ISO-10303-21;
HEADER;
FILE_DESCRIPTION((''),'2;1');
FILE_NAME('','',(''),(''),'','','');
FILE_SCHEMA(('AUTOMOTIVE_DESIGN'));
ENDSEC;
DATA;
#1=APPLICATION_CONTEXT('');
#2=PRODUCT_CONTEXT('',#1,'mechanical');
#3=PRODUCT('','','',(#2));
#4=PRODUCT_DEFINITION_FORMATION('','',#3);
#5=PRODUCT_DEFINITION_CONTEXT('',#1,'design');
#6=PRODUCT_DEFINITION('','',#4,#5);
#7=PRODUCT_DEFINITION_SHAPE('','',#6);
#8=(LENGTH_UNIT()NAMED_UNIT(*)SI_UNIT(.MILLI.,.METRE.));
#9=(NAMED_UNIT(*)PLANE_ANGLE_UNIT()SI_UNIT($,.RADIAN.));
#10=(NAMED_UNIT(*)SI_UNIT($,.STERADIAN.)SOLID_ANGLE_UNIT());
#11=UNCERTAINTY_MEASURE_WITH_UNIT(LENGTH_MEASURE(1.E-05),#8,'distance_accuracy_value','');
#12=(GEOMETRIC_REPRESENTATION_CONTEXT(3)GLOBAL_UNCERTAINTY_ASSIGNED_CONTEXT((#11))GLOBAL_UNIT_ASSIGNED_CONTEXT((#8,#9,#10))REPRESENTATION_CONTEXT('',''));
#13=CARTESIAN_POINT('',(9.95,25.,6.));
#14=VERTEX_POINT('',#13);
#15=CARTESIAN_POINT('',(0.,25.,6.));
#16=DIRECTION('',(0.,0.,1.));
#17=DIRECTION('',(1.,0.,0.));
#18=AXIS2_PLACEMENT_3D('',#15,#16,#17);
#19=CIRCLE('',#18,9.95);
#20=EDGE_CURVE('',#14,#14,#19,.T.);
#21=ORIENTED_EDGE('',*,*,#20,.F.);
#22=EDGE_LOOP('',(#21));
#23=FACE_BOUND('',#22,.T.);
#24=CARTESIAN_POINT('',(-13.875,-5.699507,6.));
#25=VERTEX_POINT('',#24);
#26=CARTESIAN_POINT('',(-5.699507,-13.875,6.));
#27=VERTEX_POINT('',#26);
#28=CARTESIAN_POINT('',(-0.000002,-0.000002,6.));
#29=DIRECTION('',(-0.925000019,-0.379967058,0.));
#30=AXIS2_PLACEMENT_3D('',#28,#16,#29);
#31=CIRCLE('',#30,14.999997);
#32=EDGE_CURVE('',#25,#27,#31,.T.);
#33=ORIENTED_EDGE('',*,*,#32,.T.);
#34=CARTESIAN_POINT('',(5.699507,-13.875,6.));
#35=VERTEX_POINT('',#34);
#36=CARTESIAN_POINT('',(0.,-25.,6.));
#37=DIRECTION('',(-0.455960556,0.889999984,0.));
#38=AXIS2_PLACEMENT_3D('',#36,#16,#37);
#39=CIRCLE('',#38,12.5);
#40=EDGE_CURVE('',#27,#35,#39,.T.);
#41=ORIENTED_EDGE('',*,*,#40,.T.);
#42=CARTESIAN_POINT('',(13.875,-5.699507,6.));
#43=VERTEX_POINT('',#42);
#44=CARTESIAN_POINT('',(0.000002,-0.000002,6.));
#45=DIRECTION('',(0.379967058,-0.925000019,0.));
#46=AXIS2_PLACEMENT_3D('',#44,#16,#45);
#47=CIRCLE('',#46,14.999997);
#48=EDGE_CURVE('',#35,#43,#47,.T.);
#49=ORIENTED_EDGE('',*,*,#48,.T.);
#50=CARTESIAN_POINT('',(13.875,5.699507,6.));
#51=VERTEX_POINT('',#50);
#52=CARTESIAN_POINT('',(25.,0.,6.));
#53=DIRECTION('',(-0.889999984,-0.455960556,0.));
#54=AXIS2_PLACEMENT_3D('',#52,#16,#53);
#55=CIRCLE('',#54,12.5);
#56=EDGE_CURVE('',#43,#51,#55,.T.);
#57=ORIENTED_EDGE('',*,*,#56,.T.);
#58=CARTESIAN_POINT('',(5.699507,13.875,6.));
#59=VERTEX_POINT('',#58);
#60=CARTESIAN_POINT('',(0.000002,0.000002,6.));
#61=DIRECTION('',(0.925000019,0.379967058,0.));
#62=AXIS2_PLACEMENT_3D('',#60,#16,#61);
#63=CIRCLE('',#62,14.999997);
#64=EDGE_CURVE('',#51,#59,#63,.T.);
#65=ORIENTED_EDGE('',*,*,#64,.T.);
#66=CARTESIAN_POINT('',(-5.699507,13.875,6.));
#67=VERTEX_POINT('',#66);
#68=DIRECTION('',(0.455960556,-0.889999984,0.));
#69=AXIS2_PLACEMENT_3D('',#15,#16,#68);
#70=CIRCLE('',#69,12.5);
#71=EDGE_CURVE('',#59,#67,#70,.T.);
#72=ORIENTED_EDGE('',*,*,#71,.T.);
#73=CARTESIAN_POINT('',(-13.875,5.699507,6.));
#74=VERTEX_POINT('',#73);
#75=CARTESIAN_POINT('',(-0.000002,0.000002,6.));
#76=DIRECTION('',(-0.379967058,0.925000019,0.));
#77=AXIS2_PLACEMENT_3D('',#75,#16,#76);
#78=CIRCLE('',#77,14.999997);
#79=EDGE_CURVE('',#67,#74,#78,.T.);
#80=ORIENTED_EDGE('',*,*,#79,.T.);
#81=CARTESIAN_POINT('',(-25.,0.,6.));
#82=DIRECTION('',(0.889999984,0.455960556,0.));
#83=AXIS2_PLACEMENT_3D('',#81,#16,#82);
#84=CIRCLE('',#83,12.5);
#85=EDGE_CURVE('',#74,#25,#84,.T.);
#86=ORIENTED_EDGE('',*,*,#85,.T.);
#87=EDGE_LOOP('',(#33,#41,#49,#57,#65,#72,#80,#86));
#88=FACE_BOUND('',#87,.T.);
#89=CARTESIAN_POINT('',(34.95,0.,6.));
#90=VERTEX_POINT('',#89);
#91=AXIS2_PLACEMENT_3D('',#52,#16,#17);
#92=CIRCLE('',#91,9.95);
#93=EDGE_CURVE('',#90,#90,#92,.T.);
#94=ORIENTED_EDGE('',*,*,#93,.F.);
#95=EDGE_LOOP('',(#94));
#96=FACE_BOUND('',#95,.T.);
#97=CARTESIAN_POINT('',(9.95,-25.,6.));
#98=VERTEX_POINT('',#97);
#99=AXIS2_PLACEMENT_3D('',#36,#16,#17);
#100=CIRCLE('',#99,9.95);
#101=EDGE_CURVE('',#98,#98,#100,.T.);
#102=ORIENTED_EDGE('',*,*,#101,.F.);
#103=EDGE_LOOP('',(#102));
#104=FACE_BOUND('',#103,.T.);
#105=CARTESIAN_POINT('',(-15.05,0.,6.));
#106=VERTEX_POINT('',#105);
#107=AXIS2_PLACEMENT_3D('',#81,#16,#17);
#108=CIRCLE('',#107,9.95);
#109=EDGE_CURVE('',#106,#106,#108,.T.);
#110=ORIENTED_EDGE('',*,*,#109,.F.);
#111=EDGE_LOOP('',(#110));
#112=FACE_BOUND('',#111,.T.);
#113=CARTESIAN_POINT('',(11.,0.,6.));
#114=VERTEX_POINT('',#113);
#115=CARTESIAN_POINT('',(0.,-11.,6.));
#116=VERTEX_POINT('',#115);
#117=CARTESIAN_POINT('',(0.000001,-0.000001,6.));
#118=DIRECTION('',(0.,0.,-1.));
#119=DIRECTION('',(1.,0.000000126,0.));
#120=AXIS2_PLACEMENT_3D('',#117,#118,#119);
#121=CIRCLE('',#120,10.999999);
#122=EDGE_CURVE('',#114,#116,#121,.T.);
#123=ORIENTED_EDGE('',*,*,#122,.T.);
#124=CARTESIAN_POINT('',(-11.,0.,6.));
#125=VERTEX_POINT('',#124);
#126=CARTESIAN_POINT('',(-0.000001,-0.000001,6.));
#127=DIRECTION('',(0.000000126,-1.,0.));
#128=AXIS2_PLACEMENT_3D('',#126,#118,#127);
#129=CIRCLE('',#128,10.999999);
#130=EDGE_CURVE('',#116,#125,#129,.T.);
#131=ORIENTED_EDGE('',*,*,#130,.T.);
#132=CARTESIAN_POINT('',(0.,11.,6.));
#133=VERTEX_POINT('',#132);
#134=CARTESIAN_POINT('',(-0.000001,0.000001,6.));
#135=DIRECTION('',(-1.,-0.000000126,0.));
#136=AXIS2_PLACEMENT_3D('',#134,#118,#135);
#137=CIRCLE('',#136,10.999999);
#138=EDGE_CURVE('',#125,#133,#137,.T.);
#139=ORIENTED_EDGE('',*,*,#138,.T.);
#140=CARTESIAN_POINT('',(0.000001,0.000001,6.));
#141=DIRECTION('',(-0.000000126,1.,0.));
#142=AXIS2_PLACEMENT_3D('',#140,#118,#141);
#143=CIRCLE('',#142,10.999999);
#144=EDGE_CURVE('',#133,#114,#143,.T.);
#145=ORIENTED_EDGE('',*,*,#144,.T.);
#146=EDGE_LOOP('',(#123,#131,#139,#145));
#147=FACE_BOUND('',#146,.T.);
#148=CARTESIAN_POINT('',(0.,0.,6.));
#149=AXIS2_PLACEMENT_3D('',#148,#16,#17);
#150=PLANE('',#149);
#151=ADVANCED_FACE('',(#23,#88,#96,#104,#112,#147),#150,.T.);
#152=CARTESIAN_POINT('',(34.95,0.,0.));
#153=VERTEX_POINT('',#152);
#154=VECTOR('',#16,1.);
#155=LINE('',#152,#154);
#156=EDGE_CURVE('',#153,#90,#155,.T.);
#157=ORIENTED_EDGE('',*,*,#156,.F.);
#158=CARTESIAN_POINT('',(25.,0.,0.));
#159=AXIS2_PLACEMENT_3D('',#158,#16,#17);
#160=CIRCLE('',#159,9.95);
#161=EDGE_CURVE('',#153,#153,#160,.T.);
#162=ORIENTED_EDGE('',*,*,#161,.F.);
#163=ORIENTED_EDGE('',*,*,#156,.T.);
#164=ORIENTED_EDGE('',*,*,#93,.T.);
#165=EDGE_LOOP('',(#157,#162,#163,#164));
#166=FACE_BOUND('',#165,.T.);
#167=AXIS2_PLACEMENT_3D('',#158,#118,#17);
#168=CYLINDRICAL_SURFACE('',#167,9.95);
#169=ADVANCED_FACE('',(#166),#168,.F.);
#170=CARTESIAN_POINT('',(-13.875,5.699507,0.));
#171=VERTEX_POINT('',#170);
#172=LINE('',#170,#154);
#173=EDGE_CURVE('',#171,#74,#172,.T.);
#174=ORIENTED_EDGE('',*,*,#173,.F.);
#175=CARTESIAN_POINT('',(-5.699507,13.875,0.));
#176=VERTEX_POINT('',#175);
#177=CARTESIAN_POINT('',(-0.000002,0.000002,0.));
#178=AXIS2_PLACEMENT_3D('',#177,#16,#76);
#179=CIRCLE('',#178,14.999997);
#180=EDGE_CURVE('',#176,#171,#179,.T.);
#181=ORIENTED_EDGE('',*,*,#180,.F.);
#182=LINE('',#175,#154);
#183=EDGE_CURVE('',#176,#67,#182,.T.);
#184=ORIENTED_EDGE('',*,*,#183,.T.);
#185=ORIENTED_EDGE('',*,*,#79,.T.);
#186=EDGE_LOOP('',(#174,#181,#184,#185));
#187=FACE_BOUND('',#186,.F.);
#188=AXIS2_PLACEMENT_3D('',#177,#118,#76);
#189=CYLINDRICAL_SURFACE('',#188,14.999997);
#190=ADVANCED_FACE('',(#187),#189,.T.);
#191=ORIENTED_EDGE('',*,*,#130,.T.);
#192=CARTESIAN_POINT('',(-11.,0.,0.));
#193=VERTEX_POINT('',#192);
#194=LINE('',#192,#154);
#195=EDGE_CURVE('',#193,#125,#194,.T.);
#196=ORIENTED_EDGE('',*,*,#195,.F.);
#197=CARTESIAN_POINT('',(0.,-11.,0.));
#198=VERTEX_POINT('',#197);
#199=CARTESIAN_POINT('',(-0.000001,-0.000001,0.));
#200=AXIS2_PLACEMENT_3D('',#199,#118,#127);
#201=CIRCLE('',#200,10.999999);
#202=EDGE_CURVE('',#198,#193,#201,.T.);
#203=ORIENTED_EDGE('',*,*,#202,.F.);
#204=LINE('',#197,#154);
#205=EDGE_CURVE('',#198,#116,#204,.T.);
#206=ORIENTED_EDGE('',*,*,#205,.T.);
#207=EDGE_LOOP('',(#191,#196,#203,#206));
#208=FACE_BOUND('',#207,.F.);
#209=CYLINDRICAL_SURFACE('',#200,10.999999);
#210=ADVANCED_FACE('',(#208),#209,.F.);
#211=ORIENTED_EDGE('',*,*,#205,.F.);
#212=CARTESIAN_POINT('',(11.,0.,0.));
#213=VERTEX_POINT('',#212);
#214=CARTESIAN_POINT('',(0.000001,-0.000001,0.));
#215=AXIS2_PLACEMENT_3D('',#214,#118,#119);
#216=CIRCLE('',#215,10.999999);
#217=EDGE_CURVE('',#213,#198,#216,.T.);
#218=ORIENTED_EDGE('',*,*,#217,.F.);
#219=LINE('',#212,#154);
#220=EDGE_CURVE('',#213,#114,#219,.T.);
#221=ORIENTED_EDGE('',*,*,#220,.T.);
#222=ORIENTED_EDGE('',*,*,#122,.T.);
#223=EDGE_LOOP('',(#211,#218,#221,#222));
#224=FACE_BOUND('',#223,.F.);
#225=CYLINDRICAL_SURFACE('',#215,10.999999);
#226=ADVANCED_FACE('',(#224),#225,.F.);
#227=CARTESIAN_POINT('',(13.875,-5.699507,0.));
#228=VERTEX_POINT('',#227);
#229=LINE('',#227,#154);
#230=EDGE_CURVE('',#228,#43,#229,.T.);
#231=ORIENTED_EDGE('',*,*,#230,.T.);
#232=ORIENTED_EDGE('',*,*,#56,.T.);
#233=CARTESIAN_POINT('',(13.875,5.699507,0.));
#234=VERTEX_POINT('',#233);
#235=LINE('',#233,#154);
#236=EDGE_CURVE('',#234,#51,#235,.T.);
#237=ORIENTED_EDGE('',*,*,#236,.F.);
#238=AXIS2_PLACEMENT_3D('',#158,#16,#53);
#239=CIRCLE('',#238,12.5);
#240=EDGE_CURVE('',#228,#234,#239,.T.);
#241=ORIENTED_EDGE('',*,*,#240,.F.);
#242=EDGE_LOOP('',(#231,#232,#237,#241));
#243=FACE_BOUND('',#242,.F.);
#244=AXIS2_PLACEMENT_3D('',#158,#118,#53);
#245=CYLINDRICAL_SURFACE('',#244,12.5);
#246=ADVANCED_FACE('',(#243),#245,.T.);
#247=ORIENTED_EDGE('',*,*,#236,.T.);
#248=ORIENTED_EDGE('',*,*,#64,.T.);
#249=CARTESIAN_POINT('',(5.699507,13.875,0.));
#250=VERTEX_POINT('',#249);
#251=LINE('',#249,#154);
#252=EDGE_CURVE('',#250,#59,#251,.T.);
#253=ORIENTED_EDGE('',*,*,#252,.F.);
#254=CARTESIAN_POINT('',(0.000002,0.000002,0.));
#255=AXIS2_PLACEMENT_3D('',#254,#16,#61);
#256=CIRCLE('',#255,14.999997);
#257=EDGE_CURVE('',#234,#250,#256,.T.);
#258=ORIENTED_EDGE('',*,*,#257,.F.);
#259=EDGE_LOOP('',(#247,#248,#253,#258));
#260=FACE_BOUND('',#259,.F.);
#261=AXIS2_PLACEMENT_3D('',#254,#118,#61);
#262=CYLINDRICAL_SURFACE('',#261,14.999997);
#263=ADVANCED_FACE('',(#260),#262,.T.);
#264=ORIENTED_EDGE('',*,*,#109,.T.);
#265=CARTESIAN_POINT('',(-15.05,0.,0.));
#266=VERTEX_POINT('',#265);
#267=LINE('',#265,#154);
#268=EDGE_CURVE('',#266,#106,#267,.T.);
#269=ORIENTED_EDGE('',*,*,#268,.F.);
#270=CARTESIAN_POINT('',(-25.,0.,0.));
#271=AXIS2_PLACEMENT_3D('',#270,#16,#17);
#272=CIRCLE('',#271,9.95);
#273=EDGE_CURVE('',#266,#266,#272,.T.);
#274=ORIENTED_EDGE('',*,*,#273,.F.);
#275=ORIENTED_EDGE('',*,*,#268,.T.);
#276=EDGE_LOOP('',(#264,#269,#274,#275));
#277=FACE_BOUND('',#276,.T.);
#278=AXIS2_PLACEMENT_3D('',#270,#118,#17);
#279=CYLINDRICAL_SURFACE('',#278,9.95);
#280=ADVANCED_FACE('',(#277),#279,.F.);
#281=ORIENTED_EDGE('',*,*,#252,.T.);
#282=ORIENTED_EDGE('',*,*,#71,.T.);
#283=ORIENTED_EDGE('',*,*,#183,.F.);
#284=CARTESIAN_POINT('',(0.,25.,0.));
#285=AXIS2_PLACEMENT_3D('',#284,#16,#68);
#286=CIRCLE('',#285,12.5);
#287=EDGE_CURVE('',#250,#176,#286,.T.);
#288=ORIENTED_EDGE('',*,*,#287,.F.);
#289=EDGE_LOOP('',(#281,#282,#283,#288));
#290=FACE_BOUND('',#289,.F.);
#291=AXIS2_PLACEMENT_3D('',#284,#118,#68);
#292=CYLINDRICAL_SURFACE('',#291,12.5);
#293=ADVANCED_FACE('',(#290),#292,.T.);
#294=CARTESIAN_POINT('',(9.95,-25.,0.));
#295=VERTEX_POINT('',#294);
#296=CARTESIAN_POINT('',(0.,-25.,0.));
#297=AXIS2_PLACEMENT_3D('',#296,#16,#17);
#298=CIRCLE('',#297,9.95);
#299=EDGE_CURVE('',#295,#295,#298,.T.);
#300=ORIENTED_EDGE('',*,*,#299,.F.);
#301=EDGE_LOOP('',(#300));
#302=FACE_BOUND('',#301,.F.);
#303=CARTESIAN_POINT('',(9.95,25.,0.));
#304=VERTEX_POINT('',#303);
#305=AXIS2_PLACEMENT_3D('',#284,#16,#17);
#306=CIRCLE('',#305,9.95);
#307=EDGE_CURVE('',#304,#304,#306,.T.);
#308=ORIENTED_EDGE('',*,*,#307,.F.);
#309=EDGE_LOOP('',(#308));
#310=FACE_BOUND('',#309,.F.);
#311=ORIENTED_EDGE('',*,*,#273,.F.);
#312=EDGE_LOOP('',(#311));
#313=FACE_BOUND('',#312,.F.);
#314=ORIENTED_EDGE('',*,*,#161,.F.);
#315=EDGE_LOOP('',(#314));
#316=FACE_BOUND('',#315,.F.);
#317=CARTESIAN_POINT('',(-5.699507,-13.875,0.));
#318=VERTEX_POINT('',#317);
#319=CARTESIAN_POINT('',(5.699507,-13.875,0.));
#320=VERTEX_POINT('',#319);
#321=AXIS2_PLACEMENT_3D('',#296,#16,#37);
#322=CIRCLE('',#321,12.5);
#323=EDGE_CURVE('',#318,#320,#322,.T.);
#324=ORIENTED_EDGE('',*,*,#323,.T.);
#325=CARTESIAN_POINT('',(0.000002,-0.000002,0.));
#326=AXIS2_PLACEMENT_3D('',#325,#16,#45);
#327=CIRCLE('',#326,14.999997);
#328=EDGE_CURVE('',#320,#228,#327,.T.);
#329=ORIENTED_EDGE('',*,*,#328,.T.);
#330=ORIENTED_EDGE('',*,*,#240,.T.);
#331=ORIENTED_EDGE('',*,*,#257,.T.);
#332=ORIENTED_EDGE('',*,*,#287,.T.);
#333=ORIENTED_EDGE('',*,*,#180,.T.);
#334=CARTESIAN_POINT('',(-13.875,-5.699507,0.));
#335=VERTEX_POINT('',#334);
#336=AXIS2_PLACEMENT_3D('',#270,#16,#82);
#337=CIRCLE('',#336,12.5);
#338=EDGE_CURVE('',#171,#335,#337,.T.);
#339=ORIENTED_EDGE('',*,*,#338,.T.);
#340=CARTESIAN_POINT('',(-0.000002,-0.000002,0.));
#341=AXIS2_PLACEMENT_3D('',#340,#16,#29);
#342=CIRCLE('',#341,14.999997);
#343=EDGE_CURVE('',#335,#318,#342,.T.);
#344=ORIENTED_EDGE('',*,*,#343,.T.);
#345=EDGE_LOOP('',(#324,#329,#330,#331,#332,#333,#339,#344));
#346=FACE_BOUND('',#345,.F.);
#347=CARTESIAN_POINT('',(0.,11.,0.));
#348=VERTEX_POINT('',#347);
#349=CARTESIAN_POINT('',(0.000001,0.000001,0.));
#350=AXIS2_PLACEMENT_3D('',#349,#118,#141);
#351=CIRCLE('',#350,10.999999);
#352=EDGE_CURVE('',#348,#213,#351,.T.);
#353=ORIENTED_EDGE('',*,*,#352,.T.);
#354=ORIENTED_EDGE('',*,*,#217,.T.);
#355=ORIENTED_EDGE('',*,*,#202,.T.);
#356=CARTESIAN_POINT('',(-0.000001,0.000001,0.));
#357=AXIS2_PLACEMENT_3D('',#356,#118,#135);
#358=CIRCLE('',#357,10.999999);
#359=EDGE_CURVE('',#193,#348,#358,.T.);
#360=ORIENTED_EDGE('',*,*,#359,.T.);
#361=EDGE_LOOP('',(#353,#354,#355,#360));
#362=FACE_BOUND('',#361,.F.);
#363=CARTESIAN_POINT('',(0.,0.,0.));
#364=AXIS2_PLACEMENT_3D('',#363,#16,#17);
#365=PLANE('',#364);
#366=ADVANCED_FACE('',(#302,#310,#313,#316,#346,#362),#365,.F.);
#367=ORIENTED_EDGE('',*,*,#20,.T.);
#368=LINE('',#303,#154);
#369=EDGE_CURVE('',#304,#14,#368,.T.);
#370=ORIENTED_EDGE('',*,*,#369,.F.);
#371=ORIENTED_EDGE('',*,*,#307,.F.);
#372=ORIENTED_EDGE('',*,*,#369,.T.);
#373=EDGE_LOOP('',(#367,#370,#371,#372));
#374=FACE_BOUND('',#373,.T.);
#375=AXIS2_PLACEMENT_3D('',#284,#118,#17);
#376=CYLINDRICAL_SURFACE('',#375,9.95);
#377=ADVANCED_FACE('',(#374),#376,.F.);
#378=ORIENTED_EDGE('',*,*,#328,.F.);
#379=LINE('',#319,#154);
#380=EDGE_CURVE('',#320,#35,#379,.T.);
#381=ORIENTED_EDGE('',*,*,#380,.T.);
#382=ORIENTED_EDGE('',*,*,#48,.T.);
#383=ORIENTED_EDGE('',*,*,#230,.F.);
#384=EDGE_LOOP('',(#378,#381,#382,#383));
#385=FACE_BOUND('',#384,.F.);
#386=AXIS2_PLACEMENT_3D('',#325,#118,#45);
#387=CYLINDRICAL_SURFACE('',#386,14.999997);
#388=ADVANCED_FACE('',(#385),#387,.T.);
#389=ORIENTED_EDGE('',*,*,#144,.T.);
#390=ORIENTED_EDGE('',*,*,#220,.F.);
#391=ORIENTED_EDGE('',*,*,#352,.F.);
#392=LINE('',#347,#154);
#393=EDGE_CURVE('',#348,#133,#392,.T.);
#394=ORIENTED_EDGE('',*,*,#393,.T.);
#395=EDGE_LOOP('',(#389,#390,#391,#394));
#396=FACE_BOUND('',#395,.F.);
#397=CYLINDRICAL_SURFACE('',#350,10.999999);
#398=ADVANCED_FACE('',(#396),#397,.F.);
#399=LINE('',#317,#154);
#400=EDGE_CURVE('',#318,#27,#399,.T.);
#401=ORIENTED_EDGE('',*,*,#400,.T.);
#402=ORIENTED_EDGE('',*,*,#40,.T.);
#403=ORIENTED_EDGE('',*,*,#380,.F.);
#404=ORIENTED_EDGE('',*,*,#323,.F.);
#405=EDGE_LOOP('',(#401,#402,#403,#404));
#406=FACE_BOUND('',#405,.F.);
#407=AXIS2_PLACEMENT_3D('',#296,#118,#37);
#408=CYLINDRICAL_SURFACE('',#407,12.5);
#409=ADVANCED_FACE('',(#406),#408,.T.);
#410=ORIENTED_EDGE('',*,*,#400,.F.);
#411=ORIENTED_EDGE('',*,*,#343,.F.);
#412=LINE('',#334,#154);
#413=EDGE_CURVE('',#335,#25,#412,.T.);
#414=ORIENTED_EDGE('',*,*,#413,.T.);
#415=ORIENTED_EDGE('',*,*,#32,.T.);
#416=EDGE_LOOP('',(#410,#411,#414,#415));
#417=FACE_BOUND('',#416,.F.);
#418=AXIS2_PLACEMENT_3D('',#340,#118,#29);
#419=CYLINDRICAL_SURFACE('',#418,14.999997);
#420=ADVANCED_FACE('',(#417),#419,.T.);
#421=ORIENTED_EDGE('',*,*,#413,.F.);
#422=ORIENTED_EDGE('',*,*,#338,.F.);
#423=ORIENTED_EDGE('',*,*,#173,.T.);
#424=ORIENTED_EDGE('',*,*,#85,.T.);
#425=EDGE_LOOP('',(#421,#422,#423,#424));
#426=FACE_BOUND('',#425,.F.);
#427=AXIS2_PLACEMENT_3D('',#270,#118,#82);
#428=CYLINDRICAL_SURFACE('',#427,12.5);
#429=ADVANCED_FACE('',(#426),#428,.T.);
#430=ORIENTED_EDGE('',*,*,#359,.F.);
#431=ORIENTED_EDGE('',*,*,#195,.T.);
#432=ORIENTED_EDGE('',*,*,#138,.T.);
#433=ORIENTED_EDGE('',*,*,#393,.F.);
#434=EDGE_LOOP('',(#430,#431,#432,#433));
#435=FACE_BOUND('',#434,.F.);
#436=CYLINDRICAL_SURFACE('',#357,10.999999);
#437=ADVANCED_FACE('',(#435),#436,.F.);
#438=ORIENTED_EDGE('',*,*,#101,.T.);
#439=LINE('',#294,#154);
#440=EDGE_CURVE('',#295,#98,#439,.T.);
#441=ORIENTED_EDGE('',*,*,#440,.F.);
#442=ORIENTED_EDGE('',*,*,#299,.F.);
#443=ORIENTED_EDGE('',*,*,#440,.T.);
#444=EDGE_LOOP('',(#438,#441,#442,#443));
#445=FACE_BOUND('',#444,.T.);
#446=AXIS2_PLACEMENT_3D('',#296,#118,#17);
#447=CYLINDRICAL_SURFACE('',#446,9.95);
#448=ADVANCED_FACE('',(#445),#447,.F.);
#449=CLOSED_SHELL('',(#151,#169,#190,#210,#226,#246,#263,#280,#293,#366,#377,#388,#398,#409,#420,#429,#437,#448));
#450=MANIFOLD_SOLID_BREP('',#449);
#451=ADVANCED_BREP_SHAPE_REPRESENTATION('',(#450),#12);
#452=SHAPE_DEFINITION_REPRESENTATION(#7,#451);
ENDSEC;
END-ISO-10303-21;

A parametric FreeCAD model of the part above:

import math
import FreeCAD as App
import Part
import Sketcher
from FreeCAD import Vector

doc = App.newDocument("Part")
body = doc.addObject("PartDesign::Body", "Body")

# Sketch on XY plane
sketch1 = body.newObject("Sketcher::SketchObject", "Sketch")
sketch1.AttachmentSupport = (doc.getObject("XY_Plane"), [""])
sketch1.MapMode = "FlatFace"
sketch1.addGeometry([
    Part.ArcOfCircle(Part.Circle(Vector(0, 25, 0), Vector(0, 0, 1), 13), math.radians(-63), math.radians(243)),  # 0
    Part.ArcOfCircle(Part.Circle(Vector(0, 0, 0), Vector(0, 0, 1), 15), math.radians(112), math.radians(158)),  # 1
    Part.ArcOfCircle(Part.Circle(Vector(-25, 0, 0), Vector(0, 0, 1), 13), math.radians(27), math.radians(333)),  # 2
    Part.ArcOfCircle(Part.Circle(Vector(0, 0, 0), Vector(0, 0, 1), 15), math.radians(-158), math.radians(-112)),  # 3
    Part.ArcOfCircle(Part.Circle(Vector(0, -25, 0), Vector(0, 0, 1), 13), math.radians(117), math.radians(423)),  # 4
    Part.ArcOfCircle(Part.Circle(Vector(0, 0, 0), Vector(0, 0, 1), 15), math.radians(-68), math.radians(-22)),  # 5
    Part.ArcOfCircle(Part.Circle(Vector(25, 0, 0), Vector(0, 0, 1), 13), math.radians(-153), math.radians(153)),  # 6
    Part.ArcOfCircle(Part.Circle(Vector(0, 0, 0), Vector(0, 0, 1), 15), math.radians(22), math.radians(68)),  # 7
    Part.Circle(Vector(0, -25, 0), Vector(0, 0, 1), 10),  # 8
    Part.Circle(Vector(-25, 0, 0), Vector(0, 0, 1), 10),  # 9
    Part.ArcOfCircle(Part.Circle(Vector(0, 0, 0), Vector(0, 0, 1), 11), math.radians(90), math.radians(180)),  # 10
    Part.ArcOfCircle(Part.Circle(Vector(0, 0, 0), Vector(0, 0, 1), 11), math.radians(0), math.radians(90)),  # 11
    Part.ArcOfCircle(Part.Circle(Vector(0, 0, 0), Vector(0, 0, 1), 11), math.radians(-90), math.radians(0)),  # 12
    Part.ArcOfCircle(Part.Circle(Vector(0, 0, 0), Vector(0, 0, 1), 11), math.radians(180), math.radians(270)),  # 13
    Part.Circle(Vector(25, 0, 0), Vector(0, 0, 1), 10),  # 14
    Part.Circle(Vector(0, 25, 0), Vector(0, 0, 1), 10),  # 15
], False)
sketch1.addConstraint([
    Sketcher.Constraint("Coincident", 0, 2, 1, 1),
    Sketcher.Constraint("Coincident", 1, 2, 2, 1),
    Sketcher.Constraint("Coincident", 2, 2, 3, 1),
    Sketcher.Constraint("Coincident", 3, 2, 4, 1),
    Sketcher.Constraint("Coincident", 4, 2, 5, 1),
    Sketcher.Constraint("Coincident", 5, 2, 6, 1),
    Sketcher.Constraint("Coincident", 6, 2, 7, 1),
    Sketcher.Constraint("Coincident", 7, 2, 0, 1),
    Sketcher.Constraint("Tangent", 10, 1, 11, 2),
    Sketcher.Constraint("Tangent", 11, 1, 12, 2),
    Sketcher.Constraint("Tangent", 12, 1, 13, 2),
    Sketcher.Constraint("Tangent", 13, 1, 10, 2),
    Sketcher.Constraint("Coincident", 1, 3, -1, 1),
    Sketcher.Constraint("Coincident", 3, 3, -1, 1),
    Sketcher.Constraint("Coincident", 5, 3, -1, 1),
    Sketcher.Constraint("Coincident", 7, 3, -1, 1),
    Sketcher.Constraint("Coincident", 10, 3, -1, 1),
    Sketcher.Constraint("Coincident", 8, 3, 4, 3),
    Sketcher.Constraint("Coincident", 9, 3, 2, 3),
    Sketcher.Constraint("Coincident", 14, 3, 6, 3),
    Sketcher.Constraint("Coincident", 15, 3, 0, 3),
    Sketcher.Constraint("Equal", 0, 2),
    Sketcher.Constraint("Equal", 1, 3),
    Sketcher.Constraint("Equal", 2, 4),
    Sketcher.Constraint("Equal", 3, 5),
    Sketcher.Constraint("Equal", 4, 6),
    Sketcher.Constraint("Equal", 5, 7),
    Sketcher.Constraint("Equal", 8, 9),
    Sketcher.Constraint("Equal", 10, 11),
    Sketcher.Constraint("Equal", 9, 14),
    Sketcher.Constraint("Equal", 14, 15),
    Sketcher.Constraint("Symmetric", 0, 3, 4, 3, -1, 1),
    Sketcher.Constraint("Symmetric", 2, 3, 6, 3, -1, 1),
    Sketcher.Constraint("PointOnObject", 0, 3, -2),
    Sketcher.Constraint("PointOnObject", 2, 3, -1),
    Sketcher.Constraint("PointOnObject", 10, 1, -2),
    Sketcher.Constraint("PointOnObject", 11, 1, -1),
    Sketcher.Constraint("PointOnObject", 12, 1, -2),
    Sketcher.Constraint("PointOnObject", 13, 1, -1),
    Sketcher.Constraint("Radius", 10, 10.999999),
    Sketcher.Constraint("Diameter", 8, 19.9),
    Sketcher.Constraint("Radius", 0, 12.5),
    Sketcher.Constraint("DistanceY", -1, 1, 0, 3, 25.0),
    Sketcher.Constraint("DistanceX", 2, 3, -1, 1, 25.0),
    Sketcher.Constraint("DistanceY", -1, 1, 0, 2, 13.875),
])
pad1 = body.newObject("PartDesign::Pad", "Pad")
pad1.Profile = sketch1
pad1.Length = 6

doc.recompute()
